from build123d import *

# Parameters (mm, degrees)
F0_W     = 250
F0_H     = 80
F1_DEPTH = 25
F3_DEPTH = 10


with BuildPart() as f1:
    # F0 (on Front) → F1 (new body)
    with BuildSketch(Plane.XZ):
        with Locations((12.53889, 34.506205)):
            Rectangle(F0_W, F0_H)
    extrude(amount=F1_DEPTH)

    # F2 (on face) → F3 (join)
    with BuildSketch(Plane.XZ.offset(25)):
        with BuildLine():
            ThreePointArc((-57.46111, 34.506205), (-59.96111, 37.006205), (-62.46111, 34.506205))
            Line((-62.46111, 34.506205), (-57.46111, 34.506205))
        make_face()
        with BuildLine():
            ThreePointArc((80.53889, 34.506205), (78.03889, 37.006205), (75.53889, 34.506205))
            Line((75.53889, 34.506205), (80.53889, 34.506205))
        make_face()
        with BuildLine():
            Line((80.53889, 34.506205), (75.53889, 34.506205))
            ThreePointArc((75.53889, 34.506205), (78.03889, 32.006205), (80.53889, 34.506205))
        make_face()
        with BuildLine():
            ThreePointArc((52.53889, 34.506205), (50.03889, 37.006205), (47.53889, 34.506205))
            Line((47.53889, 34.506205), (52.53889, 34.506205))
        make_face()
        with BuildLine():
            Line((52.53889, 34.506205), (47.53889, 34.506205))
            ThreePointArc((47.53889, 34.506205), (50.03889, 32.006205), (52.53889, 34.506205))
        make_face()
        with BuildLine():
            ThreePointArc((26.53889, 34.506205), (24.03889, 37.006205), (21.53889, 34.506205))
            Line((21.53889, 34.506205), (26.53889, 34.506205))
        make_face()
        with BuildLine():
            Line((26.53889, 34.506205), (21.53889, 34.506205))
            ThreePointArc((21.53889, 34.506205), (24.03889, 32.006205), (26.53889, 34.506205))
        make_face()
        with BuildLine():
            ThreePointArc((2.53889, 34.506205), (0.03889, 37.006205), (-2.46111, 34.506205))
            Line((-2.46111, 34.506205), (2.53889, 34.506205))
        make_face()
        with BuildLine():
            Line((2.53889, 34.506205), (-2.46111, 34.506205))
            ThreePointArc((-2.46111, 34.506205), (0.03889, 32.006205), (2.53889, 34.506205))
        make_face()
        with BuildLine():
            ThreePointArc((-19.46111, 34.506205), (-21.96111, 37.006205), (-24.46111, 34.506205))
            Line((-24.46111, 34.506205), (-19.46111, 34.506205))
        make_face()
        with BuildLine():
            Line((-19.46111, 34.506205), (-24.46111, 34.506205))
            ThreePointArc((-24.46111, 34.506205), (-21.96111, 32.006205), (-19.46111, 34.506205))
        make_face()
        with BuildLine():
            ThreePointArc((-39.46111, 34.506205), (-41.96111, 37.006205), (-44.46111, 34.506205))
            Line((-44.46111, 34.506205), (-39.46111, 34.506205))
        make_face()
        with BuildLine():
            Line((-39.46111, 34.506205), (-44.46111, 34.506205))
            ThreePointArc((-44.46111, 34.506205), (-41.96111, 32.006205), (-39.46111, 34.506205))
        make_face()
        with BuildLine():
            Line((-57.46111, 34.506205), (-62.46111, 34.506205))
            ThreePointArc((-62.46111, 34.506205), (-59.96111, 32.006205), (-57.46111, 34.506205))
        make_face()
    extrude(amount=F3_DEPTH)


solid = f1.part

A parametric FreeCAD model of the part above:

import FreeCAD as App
import Part
import Sketcher
from FreeCAD import Vector


def add_polygon(sketch, points):
    """Adds a closed chain of lines whose ends are joined by coincident constraints."""
    first, n = sketch.GeometryCount, len(points)
    for a, b in zip(points, points[1:] + points[:1]):
        sketch.addGeometry(Part.LineSegment(App.Vector(*a, 0), App.Vector(*b, 0)), False)
    for i in range(n):
        sketch.addConstraint(Sketcher.Constraint("Coincident", first + i, 2, first + (i + 1) % n, 1))

doc = App.newDocument("Part")
body = doc.addObject("PartDesign::Body", "Body")

# Sketch on XZ plane
sketch1 = body.newObject("Sketcher::SketchObject", "Sketch")
sketch1.AttachmentSupport = (doc.getObject("XZ_Plane"), [""])
sketch1.MapMode = "FlatFace"
add_polygon(sketch1, [(-112, 75), (-112, -5), (138, -5), (138, 75)])  # lines 0-3
sketch1.addConstraint([
    Sketcher.Constraint("Vertical", 0),
    Sketcher.Constraint("Horizontal", 1),
    Sketcher.Constraint("Vertical", 2),
    Sketcher.Constraint("Horizontal", 3),
    Sketcher.Constraint("DistanceX", 1, 1, 1, 2, 250.0),
    Sketcher.Constraint("DistanceY", 0, 2, 0, 1, 80.0),
    Sketcher.Constraint("DistanceX", 0, 2, -1, 1, 112.46111),
    Sketcher.Constraint("DistanceY", 0, 2, -1, 1, 5.493795),
])
pad1 = body.newObject("PartDesign::Pad", "Pad")
pad1.Profile = sketch1
pad1.Length = 25

# Sketch on XZ plane
sketch2 = body.newObject("Sketcher::SketchObject", "Sketch001")
sketch2.AttachmentSupport = (doc.getObject("XZ_Plane"), [""])
sketch2.MapMode = "FlatFace"
sketch2.AttachmentOffset = App.Placement(Vector(0, 0, 25), App.Rotation())
sketch2.addGeometry([
    Part.Circle(Vector(-60, 34.5, 0), Vector(0, 0, 1), 2.5),  # 0
    Part.Circle(Vector(78, 34.5, 0), Vector(0, 0, 1), 2.5),  # 1
    Part.Circle(Vector(50, 34.5, 0), Vector(0, 0, 1), 2.5),  # 2
    Part.Circle(Vector(24, 34.5, 0), Vector(0, 0, 1), 2.5),  # 3
    Part.Circle(Vector(0, 34.5, 0), Vector(0, 0, 1), 2.5),  # 4
    Part.Circle(Vector(-22, 34.5, 0), Vector(0, 0, 1), 2.5),  # 5
    Part.Circle(Vector(-42, 34.5, 0), Vector(0, 0, 1), 2.5),  # 6
], False)
sketch2.addConstraint([
    Sketcher.Constraint("Equal", 0, 1),
    Sketcher.Constraint("Equal", 1, 2),
    Sketcher.Constraint("Equal", 2, 3),
    Sketcher.Constraint("Equal", 3, 4),
    Sketcher.Constraint("Equal", 4, 5),
    Sketcher.Constraint("Equal", 5, 6),
    Sketcher.Constraint("Horizontal", 0, 3, 1, 3),
    Sketcher.Constraint("Horizontal", 1, 3, 2, 3),
    Sketcher.Constraint("Horizontal", 2, 3, 3, 3),
    Sketcher.Constraint("Horizontal", 3, 3, 4, 3),
    Sketcher.Constraint("Horizontal", 4, 3, 5, 3),
    Sketcher.Constraint("Horizontal", 5, 3, 6, 3),
    Sketcher.Constraint("Diameter", 0, 5.0),
    Sketcher.Constraint("DistanceX", 0, 3, 1, 3, 138.0),
    Sketcher.Constraint("DistanceX", 2, 3, 1, 3, 28.0),
    Sketcher.Constraint("DistanceX", 3, 3, 2, 3, 26.0),
    Sketcher.Constraint("DistanceX", 4, 3, 3, 3, 24.0),
    Sketcher.Constraint("DistanceX", 5, 3, 4, 3, 22.0),
    Sketcher.Constraint("DistanceX", 0, 3, 6, 3, 18.0),
    Sketcher.Constraint("DistanceX", 0, 3, -1, 1, 59.96111),
    Sketcher.Constraint("DistanceY", -1, 1, 0, 3, 34.506205),
])
pad2 = body.newObject("PartDesign::Pad", "Pad001")
pad2.Profile = sketch2
pad2.Length = 10

doc.recompute()
